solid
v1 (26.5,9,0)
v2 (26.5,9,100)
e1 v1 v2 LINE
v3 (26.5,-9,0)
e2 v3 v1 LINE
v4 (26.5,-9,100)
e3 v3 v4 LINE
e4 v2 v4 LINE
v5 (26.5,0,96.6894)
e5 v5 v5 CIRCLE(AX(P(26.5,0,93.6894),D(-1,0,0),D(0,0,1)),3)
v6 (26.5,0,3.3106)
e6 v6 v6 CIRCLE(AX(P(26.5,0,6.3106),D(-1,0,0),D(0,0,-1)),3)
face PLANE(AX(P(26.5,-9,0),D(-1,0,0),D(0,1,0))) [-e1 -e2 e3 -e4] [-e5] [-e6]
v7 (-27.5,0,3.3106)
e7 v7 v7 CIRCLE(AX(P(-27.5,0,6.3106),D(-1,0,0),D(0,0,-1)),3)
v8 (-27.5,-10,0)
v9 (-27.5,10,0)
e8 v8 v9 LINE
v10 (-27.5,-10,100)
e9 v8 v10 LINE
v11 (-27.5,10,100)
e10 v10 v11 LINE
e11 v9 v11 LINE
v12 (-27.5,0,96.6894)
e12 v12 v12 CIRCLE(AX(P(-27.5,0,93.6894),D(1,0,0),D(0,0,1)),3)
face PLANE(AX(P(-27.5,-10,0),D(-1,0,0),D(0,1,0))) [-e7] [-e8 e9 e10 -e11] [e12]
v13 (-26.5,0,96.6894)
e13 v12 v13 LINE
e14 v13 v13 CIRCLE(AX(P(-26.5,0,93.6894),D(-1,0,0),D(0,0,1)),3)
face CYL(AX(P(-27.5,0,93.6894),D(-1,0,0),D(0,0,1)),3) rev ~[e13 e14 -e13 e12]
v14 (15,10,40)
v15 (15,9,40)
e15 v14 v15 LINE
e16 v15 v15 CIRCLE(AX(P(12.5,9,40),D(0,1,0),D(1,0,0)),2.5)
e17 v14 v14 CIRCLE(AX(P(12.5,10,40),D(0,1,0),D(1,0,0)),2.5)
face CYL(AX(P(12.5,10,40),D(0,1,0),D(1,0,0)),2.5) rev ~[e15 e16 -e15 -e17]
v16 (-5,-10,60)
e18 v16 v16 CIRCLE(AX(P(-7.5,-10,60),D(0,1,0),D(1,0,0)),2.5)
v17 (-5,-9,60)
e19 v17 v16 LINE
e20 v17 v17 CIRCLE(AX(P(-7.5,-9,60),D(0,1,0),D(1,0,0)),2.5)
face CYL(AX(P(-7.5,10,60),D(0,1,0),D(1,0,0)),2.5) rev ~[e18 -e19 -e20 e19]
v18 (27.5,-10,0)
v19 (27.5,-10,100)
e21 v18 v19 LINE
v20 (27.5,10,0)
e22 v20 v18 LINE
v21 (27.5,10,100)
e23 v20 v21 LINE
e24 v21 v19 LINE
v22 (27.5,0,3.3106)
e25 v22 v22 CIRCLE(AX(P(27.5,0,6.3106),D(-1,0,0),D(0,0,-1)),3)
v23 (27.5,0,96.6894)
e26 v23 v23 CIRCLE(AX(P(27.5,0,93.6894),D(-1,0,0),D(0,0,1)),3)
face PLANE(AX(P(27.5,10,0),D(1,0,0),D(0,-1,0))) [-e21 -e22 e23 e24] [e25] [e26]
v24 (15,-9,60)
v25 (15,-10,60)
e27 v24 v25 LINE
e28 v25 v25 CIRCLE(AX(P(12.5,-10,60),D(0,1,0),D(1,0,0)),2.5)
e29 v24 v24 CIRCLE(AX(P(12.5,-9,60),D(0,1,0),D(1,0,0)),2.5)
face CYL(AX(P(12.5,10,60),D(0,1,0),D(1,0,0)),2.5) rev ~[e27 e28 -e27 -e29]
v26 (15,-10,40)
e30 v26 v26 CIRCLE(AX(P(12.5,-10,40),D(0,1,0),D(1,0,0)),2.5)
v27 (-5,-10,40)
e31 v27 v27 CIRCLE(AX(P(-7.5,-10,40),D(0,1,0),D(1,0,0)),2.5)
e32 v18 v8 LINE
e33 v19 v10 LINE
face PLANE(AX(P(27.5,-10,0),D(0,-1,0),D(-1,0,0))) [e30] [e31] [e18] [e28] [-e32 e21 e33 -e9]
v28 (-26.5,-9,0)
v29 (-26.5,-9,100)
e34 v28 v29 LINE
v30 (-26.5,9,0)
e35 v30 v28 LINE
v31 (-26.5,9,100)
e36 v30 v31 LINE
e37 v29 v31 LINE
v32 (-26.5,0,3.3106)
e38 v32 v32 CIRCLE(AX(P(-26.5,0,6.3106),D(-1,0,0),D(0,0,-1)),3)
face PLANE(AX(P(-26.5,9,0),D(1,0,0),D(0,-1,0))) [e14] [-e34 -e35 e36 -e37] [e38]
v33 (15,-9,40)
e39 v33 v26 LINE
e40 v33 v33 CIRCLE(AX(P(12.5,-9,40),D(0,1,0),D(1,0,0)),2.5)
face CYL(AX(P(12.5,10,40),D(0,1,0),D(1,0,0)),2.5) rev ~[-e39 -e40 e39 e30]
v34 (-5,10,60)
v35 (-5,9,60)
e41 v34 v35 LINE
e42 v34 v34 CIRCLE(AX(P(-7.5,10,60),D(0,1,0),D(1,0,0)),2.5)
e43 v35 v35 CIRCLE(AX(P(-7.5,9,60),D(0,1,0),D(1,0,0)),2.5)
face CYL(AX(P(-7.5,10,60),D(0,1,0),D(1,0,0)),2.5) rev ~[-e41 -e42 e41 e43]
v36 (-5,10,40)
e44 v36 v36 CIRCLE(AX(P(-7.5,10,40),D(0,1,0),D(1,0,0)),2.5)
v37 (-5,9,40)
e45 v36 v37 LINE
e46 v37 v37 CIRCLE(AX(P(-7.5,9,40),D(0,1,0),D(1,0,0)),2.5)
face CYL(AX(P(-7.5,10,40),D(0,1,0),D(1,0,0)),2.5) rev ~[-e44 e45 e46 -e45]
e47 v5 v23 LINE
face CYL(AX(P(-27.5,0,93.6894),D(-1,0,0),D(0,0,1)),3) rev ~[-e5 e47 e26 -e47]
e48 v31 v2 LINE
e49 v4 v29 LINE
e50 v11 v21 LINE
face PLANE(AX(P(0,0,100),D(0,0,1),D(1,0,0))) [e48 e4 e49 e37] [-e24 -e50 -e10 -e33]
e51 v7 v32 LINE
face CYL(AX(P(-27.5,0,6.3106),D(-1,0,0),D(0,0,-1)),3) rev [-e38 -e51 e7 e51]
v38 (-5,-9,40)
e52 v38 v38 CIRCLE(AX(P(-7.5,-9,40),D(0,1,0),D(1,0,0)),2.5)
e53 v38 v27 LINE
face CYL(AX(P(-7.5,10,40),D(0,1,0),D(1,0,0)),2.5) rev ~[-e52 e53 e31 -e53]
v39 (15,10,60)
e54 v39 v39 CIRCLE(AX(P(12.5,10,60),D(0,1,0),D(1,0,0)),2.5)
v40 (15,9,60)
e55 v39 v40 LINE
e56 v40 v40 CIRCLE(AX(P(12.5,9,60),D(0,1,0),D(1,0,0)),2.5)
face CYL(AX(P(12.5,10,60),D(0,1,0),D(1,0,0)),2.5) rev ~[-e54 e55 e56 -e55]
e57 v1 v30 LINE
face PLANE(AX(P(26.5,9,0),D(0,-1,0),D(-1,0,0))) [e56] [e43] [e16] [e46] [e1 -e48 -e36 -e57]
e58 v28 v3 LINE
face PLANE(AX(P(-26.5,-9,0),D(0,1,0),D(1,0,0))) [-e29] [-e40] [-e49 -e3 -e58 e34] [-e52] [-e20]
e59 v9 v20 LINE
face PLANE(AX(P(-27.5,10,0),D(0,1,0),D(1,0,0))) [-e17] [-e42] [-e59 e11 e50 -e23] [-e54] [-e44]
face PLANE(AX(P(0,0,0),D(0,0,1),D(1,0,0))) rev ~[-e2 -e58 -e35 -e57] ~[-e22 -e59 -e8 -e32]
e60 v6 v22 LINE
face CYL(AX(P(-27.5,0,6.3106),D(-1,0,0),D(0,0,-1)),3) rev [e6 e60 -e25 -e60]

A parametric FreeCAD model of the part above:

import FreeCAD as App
import Part
import Sketcher


def add_polygon(sketch, points):
    """Adds a closed chain of lines whose ends are joined by coincident constraints."""
    first, n = sketch.GeometryCount, len(points)
    for a, b in zip(points, points[1:] + points[:1]):
        sketch.addGeometry(Part.LineSegment(App.Vector(*a, 0), App.Vector(*b, 0)), False)
    for i in range(n):
        sketch.addConstraint(Sketcher.Constraint("Coincident", first + i, 2, first + (i + 1) % n, 1))

doc = App.newDocument("Part")
body = doc.addObject("PartDesign::Body", "Body")

# Sketch on XY plane
sketch1 = doc.addObject("Sketcher::SketchObject", "Sketch")
body.addObject(sketch1)
sketch1.AttachmentSupport = (doc.XY_Plane, [""])
sketch1.MapMode = "FlatFace"
add_polygon(sketch1, [(-28, -10), (28, -10), (28, 10), (-28, 10)])  # lines 0-3
sketch1.addConstraint([
    Sketcher.Constraint("Horizontal", 0),
    Sketcher.Constraint("Vertical", 1),
    Sketcher.Constraint("Horizontal", 2),
    Sketcher.Constraint("Vertical", 3),
    Sketcher.Constraint("Symmetric", 0, 2, 2, 2, -1, 1),
    Sketcher.Constraint("DistanceX", 0, 1, 0, 2, 55.0),
    Sketcher.Constraint("DistanceY", 1, 1, 1, 2, 20.0),
])
pad1 = doc.addObject("PartDesign::Pad", "Pad")
body.addObject(pad1)
pad1.Profile = sketch1
pad1.Length = 100

# Sketch on XY plane
sketch2 = doc.addObject("Sketcher::SketchObject", "Sketch001")
body.addObject(sketch2)
sketch2.AttachmentSupport = (doc.XY_Plane, [""])
sketch2.MapMode = "FlatFace"
add_polygon(sketch2, [(26, -9), (-26, -9), (-26, 9), (26, 9)])  # lines 0-3
sketch2.addConstraint([
    Sketcher.Constraint("Horizontal", 0),
    Sketcher.Constraint("Vertical", 1),
    Sketcher.Constraint("Horizontal", 2),
    Sketcher.Constraint("Vertical", 3),
    Sketcher.Constraint("Symmetric", 0, 2, 2, 2, -1, 1),
    Sketcher.Constraint("DistanceX", 0, 2, 0, 1, 53.0),
    Sketcher.Constraint("DistanceY", 1, 1, 1, 2, 18.0),
])
pocket1 = doc.addObject("PartDesign::Pocket", "Pocket")
body.addObject(pocket1)
pocket1.Profile = sketch2
pocket1.Length = 109.25
pocket1.Reversed = True

# Sketch on YZ plane
sketch3 = doc.addObject("Sketcher::SketchObject", "Sketch002")
body.addObject(sketch3)
sketch3.AttachmentSupport = (doc.YZ_Plane, [""])
sketch3.MapMode = "FlatFace"
sketch3.AttachmentOffset = App.Placement(App.Vector(0, 0, -27.5), App.Rotation())
sketch3.addGeometry(Part.Circle(App.Vector(0, 93.7, 0), App.Vector(0, 0, 1), 3), False)
sketch3.addConstraint([
    Sketcher.Constraint("PointOnObject", 0, 3, -2),
    Sketcher.Constraint("Diameter", 0, 6.0),
    Sketcher.Constraint("DistanceY", -1, 1, 0, 3, 93.6894),
])
pocket2 = doc.addObject("PartDesign::Pocket", "Pocket001")
body.addObject(pocket2)
pocket2.Profile = sketch3
pocket2.Length = 109.25
pocket2.Reversed = True
doc.recompute()

datumplane = doc.addObject("PartDesign::Plane", "DatumPlane")
body.addObject(datumplane)
datumplane.AttachmentSupport = (doc.XY_Plane, [""])
datumplane.MapMode = "FlatFace"
datumplane.AttachmentOffset = App.Placement(App.Vector(0, 0, 50), App.Rotation())
mirrored = doc.addObject("PartDesign::Mirrored", "Mirrored")
body.addObject(mirrored)
mirrored.Originals = [pocket2]
mirrored.MirrorPlane = (datumplane, [""])
body.Tip = mirrored

# Sketch on XZ plane
sketch4 = doc.addObject("Sketcher::SketchObject", "Sketch003")
body.addObject(sketch4)
sketch4.AttachmentSupport = (doc.XZ_Plane, [""])
sketch4.MapMode = "FlatFace"
sketch4.AttachmentOffset = App.Placement(App.Vector(0, 0, -10), App.Rotation())
sketch4.addGeometry([
    Part.Circle(App.Vector(12.5, 60, 0), App.Vector(0, 0, 1), 2.5),
    Part.Circle(App.Vector(-7.5, 40, 0), App.Vector(0, 0, 1), 2.5),
    Part.Circle(App.Vector(-7.5, 60, 0), App.Vector(0, 0, 1), 2.5),
    Part.Circle(App.Vector(12.5, 40, 0), App.Vector(0, 0, 1), 2.5),
], False)
sketch4.addConstraint([
    Sketcher.Constraint("Equal", 0, 1),
    Sketcher.Constraint("Equal", 1, 2),
    Sketcher.Constraint("Equal", 2, 3),
    Sketcher.Constraint("Horizontal", 0, 3, 2, 3),
    Sketcher.Constraint("Horizontal", 1, 3, 3, 3),
    Sketcher.Constraint("Vertical", 1, 3, 2, 3),
    Sketcher.Constraint("Vertical", 0, 3, 3, 3),
    Sketcher.Constraint("Diameter", 0, 5.0),
    Sketcher.Constraint("DistanceY", -1, 1, 0, 3, 60.0),
    Sketcher.Constraint("DistanceY", -1, 1, 1, 3, 40.0),
    Sketcher.Constraint("DistanceX", 1, 3, 0, 3, 20.0),
    Sketcher.Constraint("DistanceX", -1, 1, 0, 3, 12.5),
])
pocket3 = doc.addObject("PartDesign::Pocket", "Pocket002")
body.addObject(pocket3)
pocket3.Profile = sketch4
pocket3.Length = 42.75
pocket3.Reversed = True

doc.recompute()
